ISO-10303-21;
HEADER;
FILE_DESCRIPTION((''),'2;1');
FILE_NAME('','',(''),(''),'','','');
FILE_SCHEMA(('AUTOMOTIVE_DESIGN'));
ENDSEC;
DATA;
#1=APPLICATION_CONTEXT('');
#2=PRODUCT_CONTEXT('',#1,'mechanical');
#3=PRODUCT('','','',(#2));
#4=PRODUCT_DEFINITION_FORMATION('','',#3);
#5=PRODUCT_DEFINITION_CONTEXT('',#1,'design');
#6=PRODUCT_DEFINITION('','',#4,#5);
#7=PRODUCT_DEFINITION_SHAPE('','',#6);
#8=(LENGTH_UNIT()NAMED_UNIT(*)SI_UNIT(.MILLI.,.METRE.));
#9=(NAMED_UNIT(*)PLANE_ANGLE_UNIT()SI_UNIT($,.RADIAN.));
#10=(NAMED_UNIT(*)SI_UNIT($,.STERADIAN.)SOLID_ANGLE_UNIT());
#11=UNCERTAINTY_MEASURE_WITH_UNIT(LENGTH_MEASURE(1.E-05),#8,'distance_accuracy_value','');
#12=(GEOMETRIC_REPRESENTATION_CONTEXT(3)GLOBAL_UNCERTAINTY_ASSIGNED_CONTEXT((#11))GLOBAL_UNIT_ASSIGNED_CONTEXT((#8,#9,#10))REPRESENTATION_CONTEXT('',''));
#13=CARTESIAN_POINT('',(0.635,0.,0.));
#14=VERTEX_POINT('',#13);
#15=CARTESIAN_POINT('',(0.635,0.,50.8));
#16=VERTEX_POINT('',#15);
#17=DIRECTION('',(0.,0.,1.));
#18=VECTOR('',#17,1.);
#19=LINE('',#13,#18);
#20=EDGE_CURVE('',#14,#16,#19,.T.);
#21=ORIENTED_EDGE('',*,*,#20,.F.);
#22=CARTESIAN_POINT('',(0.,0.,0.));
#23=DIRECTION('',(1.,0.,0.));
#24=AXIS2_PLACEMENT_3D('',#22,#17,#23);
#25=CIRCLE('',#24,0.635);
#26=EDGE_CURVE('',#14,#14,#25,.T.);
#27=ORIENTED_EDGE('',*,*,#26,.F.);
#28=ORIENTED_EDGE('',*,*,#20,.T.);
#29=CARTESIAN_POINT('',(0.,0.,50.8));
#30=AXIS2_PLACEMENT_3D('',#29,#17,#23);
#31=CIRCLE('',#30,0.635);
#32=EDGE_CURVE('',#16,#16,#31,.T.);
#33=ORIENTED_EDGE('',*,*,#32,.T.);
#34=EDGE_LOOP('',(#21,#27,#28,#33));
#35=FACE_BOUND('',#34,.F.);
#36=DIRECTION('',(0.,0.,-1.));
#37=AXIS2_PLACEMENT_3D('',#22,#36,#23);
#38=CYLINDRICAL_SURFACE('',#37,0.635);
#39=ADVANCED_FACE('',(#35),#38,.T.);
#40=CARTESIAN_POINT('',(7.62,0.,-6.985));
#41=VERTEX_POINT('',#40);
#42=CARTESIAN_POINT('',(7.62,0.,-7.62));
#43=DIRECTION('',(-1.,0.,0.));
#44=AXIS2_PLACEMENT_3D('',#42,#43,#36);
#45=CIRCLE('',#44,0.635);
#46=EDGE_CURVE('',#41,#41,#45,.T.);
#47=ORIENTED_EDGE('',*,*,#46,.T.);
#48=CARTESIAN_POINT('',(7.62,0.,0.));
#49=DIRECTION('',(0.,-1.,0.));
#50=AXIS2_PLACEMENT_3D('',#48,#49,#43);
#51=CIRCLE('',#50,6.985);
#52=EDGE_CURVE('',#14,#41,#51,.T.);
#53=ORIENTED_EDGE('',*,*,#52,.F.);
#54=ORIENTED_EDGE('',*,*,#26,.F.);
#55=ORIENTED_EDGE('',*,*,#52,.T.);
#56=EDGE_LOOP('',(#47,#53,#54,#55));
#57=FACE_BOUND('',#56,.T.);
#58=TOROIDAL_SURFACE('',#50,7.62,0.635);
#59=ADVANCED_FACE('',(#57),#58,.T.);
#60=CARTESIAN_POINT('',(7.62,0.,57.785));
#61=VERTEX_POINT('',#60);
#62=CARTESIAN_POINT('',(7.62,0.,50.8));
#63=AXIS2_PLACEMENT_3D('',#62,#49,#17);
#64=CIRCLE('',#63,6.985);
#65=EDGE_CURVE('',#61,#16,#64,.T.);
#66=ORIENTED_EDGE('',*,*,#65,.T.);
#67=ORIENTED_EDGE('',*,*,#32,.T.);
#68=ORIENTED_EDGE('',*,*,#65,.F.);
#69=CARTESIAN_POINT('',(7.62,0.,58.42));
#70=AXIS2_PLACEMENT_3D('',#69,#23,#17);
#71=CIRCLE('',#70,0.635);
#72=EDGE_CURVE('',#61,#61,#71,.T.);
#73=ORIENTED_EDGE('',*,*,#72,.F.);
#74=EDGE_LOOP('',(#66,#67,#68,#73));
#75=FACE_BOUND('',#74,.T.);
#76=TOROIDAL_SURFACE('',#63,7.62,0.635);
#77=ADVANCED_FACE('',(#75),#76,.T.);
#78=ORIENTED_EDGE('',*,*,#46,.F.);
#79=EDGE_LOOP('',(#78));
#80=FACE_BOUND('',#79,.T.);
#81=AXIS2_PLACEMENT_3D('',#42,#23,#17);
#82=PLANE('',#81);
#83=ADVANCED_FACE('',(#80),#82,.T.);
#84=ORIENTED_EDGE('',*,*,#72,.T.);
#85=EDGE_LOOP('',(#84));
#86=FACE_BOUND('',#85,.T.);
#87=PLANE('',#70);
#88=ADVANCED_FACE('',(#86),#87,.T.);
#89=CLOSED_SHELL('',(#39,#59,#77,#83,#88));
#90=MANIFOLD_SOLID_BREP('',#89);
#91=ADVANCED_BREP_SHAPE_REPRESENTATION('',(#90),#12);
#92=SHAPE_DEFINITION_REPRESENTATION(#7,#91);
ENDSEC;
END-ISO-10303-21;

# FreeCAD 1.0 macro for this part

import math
import FreeCAD as App
import Part
import Sketcher
Q = App.Units.Quantity

doc = App.newDocument("Part")
body = doc.addObject("PartDesign::Body", "Body")

# Sketch on XY plane
sketch1 = doc.addObject("Sketcher::SketchObject", "Sketch")
body.addObject(sketch1)
sketch1.AttachmentSupport = (doc.XY_Plane, [""])
sketch1.MapMode = "FlatFace"
sketch1.addGeometry(Part.Circle(App.Vector(0, 0, 0), App.Vector(0, 0, 1), 0.6), False)
sketch1.addConstraint([
    Sketcher.Constraint("Coincident", 0, 3, -1, 1),
    Sketcher.Constraint("Diameter", 0, Q("0.05 in")),
])
pad1 = doc.addObject("PartDesign::Pad", "Pad")
body.addObject(pad1)
pad1.Profile = sketch1
pad1.Length = Q("2 in")

# Sketch on XY plane
sketch2 = doc.addObject("Sketcher::SketchObject", "Sketch001")
body.addObject(sketch2)
sketch2.AttachmentSupport = (doc.XY_Plane, [""])
sketch2.MapMode = "FlatFace"
sketch2.AttachmentOffset = App.Placement(App.Vector(0, 0, 2 * 25.4), App.Rotation())
sketch2.addGeometry(Part.Circle(App.Vector(0, 0, 0), App.Vector(0, 0, 1), 0.6), False)
sketch2.addConstraint([
    Sketcher.Constraint("Coincident", 0, 3, -1, 1),
    Sketcher.Constraint("Diameter", 0, Q("0.05 in")),
])

# Sketch on XZ plane
sketch3 = doc.addObject("Sketcher::SketchObject", "Sketch002")
body.addObject(sketch3)
sketch3.AttachmentSupport = (doc.XZ_Plane, [""])
sketch3.MapMode = "FlatFace"
sketch3.addGeometry(Part.ArcOfCircle(Part.Circle(App.Vector(8, 51, 0), App.Vector(0, 0, 1), 8), math.radians(90), math.radians(180)), False)
sketch3.addConstraint([
    Sketcher.Constraint("PointOnObject", 0, 2, -2),
    Sketcher.Constraint("Radius", 0, Q("0.3 in")),
    Sketcher.Constraint("DistanceY", -1, 1, 0, 3, Q("2 in")),
    Sketcher.Constraint("DistanceY", -1, 1, 0, 2, Q("2 in")),
    Sketcher.Constraint("DistanceX", -1, 1, 0, 1, Q("0.3 in")),
])
doc.recompute()

additivepipe = doc.addObject("PartDesign::AdditivePipe", "AdditivePipe")
body.addObject(additivepipe)
additivepipe.Profile = sketch2
additivepipe.Spine = (sketch3, ["Edge1"])

# Sketch on XY plane
sketch4 = doc.addObject("Sketcher::SketchObject", "Sketch003")
body.addObject(sketch4)
sketch4.AttachmentSupport = (doc.XY_Plane, [""])
sketch4.MapMode = "FlatFace"
sketch4.addGeometry(Part.Circle(App.Vector(0, 0, 0), App.Vector(0, 0, 1), 0.6), False)
sketch4.addConstraint([
    Sketcher.Constraint("Coincident", 0, 3, -1, 1),
    Sketcher.Constraint("Diameter", 0, Q("0.05 in")),
])

# Sketch on XZ plane
sketch5 = doc.addObject("Sketcher::SketchObject", "Sketch004")
body.addObject(sketch5)
sketch5.AttachmentSupport = (doc.XZ_Plane, [""])
sketch5.MapMode = "FlatFace"
sketch5.addGeometry(Part.ArcOfCircle(Part.Circle(App.Vector(8, 0, 0), App.Vector(0, 0, 1), 8), math.radians(180), math.radians(270)), False)
sketch5.addConstraint([
    Sketcher.Constraint("Coincident", 0, 1, -1, 1),
    Sketcher.Constraint("PointOnObject", 0, 3, -1),
    Sketcher.Constraint("Radius", 0, Q("0.3 in")),
    Sketcher.Constraint("DistanceX", -1, 1, 0, 2, Q("0.3 in")),
])
doc.recompute()

additivepipe2 = doc.addObject("PartDesign::AdditivePipe", "AdditivePipe001")
body.addObject(additivepipe2)
additivepipe2.Profile = sketch4
additivepipe2.Spine = (sketch5, ["Edge1"])

doc.recompute()
